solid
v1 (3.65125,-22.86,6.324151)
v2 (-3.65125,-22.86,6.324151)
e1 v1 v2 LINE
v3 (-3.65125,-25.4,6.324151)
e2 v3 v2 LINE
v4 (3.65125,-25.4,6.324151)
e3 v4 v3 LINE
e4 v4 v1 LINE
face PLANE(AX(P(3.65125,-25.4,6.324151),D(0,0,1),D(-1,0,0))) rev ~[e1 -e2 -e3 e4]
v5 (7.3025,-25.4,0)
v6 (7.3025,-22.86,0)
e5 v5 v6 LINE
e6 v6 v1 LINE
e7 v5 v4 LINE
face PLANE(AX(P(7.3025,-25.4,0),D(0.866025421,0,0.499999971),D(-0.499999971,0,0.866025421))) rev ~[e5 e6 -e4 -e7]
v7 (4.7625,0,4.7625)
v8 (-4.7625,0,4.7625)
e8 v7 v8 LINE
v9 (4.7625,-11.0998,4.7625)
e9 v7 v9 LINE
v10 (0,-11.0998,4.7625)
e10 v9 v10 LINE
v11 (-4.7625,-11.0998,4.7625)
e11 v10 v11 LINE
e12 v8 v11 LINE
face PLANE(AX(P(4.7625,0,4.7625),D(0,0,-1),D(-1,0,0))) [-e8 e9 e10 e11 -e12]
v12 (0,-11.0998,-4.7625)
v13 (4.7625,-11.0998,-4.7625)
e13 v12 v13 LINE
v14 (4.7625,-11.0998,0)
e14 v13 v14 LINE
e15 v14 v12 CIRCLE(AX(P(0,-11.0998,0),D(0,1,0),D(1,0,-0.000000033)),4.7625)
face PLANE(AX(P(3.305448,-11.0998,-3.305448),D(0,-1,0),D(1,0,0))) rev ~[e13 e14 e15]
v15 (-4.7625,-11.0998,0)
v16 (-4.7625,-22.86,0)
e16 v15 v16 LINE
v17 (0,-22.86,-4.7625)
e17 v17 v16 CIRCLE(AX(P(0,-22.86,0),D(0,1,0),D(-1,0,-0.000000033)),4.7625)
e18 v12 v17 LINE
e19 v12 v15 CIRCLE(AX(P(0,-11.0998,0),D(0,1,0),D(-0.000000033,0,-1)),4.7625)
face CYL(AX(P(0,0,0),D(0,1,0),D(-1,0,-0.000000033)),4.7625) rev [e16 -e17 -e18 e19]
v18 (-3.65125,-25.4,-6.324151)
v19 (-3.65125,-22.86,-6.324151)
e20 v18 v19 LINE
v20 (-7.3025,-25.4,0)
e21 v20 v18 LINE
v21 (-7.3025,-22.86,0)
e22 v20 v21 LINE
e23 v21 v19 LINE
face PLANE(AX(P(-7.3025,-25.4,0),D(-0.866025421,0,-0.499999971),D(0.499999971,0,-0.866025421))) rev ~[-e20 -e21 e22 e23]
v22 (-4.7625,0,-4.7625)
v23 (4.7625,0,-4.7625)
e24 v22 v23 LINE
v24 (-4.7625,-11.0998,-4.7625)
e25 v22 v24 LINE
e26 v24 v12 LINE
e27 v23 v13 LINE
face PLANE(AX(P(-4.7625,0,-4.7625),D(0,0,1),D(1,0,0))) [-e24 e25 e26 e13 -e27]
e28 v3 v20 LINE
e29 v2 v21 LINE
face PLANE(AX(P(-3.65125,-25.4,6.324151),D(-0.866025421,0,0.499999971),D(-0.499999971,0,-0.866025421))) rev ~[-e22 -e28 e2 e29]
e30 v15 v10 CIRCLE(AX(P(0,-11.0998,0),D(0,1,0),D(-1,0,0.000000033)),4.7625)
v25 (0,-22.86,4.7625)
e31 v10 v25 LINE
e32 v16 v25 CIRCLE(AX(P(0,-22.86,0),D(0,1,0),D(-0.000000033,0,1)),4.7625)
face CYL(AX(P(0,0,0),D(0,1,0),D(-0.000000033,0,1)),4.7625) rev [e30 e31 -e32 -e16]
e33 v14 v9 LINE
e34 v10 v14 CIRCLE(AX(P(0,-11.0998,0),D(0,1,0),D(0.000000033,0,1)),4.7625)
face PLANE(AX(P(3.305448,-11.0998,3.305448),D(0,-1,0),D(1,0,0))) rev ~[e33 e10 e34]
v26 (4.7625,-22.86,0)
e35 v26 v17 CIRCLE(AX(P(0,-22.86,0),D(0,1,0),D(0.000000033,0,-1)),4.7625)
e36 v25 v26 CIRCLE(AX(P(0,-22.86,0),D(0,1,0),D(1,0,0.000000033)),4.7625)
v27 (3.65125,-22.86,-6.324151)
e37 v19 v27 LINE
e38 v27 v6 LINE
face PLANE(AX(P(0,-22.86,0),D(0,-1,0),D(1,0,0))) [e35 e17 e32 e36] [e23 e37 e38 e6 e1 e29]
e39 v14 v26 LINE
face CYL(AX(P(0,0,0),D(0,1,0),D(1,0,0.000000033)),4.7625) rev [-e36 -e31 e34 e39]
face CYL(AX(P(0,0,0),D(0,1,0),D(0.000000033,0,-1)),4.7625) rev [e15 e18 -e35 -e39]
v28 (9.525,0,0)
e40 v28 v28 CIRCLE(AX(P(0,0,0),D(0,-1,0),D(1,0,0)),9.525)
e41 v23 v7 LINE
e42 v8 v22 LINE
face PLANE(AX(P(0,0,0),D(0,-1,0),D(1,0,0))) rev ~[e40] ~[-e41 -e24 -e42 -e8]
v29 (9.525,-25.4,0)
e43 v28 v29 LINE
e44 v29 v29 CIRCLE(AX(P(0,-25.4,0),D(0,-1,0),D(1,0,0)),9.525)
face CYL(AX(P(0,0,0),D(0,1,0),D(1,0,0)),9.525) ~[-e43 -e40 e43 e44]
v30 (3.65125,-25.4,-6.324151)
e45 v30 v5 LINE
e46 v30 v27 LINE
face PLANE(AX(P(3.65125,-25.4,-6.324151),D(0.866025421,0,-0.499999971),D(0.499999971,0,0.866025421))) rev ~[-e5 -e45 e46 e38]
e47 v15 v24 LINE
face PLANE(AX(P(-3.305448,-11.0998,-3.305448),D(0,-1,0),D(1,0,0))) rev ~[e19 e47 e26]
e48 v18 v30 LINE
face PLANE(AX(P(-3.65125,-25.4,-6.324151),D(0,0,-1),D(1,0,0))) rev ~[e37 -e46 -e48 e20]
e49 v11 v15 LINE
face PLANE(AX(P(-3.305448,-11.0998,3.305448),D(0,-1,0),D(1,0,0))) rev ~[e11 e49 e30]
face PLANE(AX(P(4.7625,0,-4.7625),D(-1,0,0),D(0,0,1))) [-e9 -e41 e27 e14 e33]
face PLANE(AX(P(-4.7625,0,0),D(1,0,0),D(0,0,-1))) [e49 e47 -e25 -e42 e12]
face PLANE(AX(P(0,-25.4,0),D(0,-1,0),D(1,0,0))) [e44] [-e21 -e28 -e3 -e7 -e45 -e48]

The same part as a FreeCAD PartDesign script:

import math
import FreeCAD as App
import Part
import Sketcher
Q = App.Units.Quantity

doc = App.newDocument("Part")
body = doc.addObject("PartDesign::Body", "Body")

sketch1 = doc.addObject("Sketcher::SketchObject", "Sketch")
body.addObject(sketch1)
sketch1.AttachmentSupport = (doc.XZ_Plane, [""])
sketch1.MapMode = "FlatFace"
sketch1.addGeometry(Part.Circle(App.Vector(0, 0, 0), App.Vector(0, 0, 1), 10), False)
sketch1.addConstraint([
    Sketcher.Constraint("Coincident", 0, 3, -1, 1),
    Sketcher.Constraint("Diameter", 0, Q("0.75 in")),
])
pad1 = doc.addObject("PartDesign::Pad", "Pad")
body.addObject(pad1)
pad1.Profile = sketch1
pad1.Length = Q("1 in")

sketch2 = doc.addObject("Sketcher::SketchObject", "Sketch001")
body.addObject(sketch2)
sketch2.AttachmentSupport = (doc.XZ_Plane, [""])
sketch2.MapMode = "FlatFace"
sketch2.addGeometry([
    Part.ArcOfCircle(Part.Circle(App.Vector(0, 0, 0), App.Vector(0, 0, 1), 4.8), math.radians(-180), math.radians(-90)),
    Part.ArcOfCircle(Part.Circle(App.Vector(0, 0, 0), App.Vector(0, 0, 1), 4.8), math.radians(-90), math.radians(0)),
    Part.ArcOfCircle(Part.Circle(App.Vector(0, 0, 0), App.Vector(0, 0, 1), 4.8), math.radians(0), math.radians(90)),
    Part.ArcOfCircle(Part.Circle(App.Vector(0, 0, 0), App.Vector(0, 0, 1), 4.8), math.radians(90), math.radians(180)),
], False)
sketch2.addConstraint([
    Sketcher.Constraint("Tangent", 0, 2, 1, 1),
    Sketcher.Constraint("Tangent", 1, 2, 2, 1),
    Sketcher.Constraint("Tangent", 2, 2, 3, 1),
    Sketcher.Constraint("Tangent", 3, 2, 0, 1),
    Sketcher.Constraint("Coincident", 0, 3, -1, 1),
    Sketcher.Constraint("Equal", 0, 1),
    Sketcher.Constraint("PointOnObject", 0, 2, -2),
    Sketcher.Constraint("PointOnObject", 1, 2, -1),
    Sketcher.Constraint("PointOnObject", 2, 2, -2),
    Sketcher.Constraint("PointOnObject", 3, 2, -1),
    Sketcher.Constraint("Radius", 0, Q("0.1875 in")),
])
pocket1 = doc.addObject("PartDesign::Pocket", "Pocket")
body.addObject(pocket1)
pocket1.Profile = sketch2
pocket1.Length = Q("1 in")
pocket1.Reversed = True

sketch3 = doc.addObject("Sketcher::SketchObject", "Sketch002")
body.addObject(sketch3)
sketch3.AttachmentSupport = (doc.XZ_Plane, [""])
sketch3.MapMode = "FlatFace"
sketch3.addGeometry([
    Part.LineSegment(App.Vector(-4.8, 0, 0), App.Vector(-4.8, -4.8, 0)),
    Part.LineSegment(App.Vector(-4.8, -4.8, 0), App.Vector(0, -4.8, 0)),
    Part.ArcOfCircle(Part.Circle(App.Vector(0, 0, 0), App.Vector(0, 0, 1), 4.8), math.radians(-180), math.radians(-90)),
    Part.ArcOfCircle(Part.Circle(App.Vector(0, 0, 0), App.Vector(0, 0, 1), 4.8), math.radians(-90), math.radians(0)),
    Part.LineSegment(App.Vector(0, -4.8, 0), App.Vector(4.8, -4.8, 0)),
    Part.LineSegment(App.Vector(4.8, -4.8, 0), App.Vector(4.8, 0, 0)),
    Part.LineSegment(App.Vector(-4.8, 4.8, 0), App.Vector(-4.8, 0, 0)),
    Part.ArcOfCircle(Part.Circle(App.Vector(0, 0, 0), App.Vector(0, 0, 1), 4.8), math.radians(90), math.radians(180)),
    Part.LineSegment(App.Vector(0, 4.8, 0), App.Vector(-4.8, 4.8, 0)),
    Part.ArcOfCircle(Part.Circle(App.Vector(0, 0, 0), App.Vector(0, 0, 1), 4.8), math.radians(0), math.radians(90)),
    Part.LineSegment(App.Vector(4.8, 0, 0), App.Vector(4.8, 4.8, 0)),
    Part.LineSegment(App.Vector(4.8, 4.8, 0), App.Vector(0, 4.8, 0)),
], False)
sketch3.addConstraint([
    Sketcher.Constraint("Coincident", 0, 2, 1, 1),
    Sketcher.Constraint("Tangent", 1, 2, 2, 2),
    Sketcher.Constraint("Tangent", 2, 1, 0, 1),
    Sketcher.Constraint("Tangent", 3, 1, 4, 1),
    Sketcher.Constraint("Coincident", 4, 2, 5, 1),
    Sketcher.Constraint("Tangent", 5, 2, 3, 2),
    Sketcher.Constraint("Tangent", 6, 2, 7, 2),
    Sketcher.Constraint("Tangent", 7, 1, 8, 1),
    Sketcher.Constraint("Coincident", 8, 2, 6, 1),
    Sketcher.Constraint("Tangent", 9, 1, 10, 1),
    Sketcher.Constraint("Coincident", 10, 2, 11, 1),
    Sketcher.Constraint("Tangent", 11, 2, 9, 2),
    Sketcher.Constraint("Vertical", 0),
    Sketcher.Constraint("Horizontal", 1),
    Sketcher.Constraint("Horizontal", 4),
    Sketcher.Constraint("Vertical", 5),
    Sketcher.Constraint("Vertical", 6),
    Sketcher.Constraint("Horizontal", 8),
    Sketcher.Constraint("Vertical", 10),
    Sketcher.Constraint("Horizontal", 11),
    Sketcher.Constraint("Coincident", 2, 3, -1, 1),
    Sketcher.Constraint("Coincident", 3, 3, -1, 1),
    Sketcher.Constraint("Coincident", 7, 3, -1, 1),
    Sketcher.Constraint("Coincident", 9, 3, -1, 1),
    Sketcher.Constraint("Equal", 2, 3),
    Sketcher.Constraint("Equal", 3, 7),
    Sketcher.Constraint("Equal", 7, 9),
    Sketcher.Constraint("Radius", 2, Q("0.1875 in")),
])
pocket2 = doc.addObject("PartDesign::Pocket", "Pocket001")
body.addObject(pocket2)
pocket2.Profile = sketch3
pocket2.Length = Q("0.437 in")
pocket2.Reversed = True

sketch4 = doc.addObject("Sketcher::SketchObject", "Sketch003")
body.addObject(sketch4)
sketch4.AttachmentSupport = (doc.XZ_Plane, [""])
sketch4.MapMode = "FlatFace"
sketch4.AttachmentOffset = App.Placement(App.Vector(0, 0, 1 * 25.4), App.Rotation())
sketch4.addGeometry([
    Part.LineSegment(App.Vector(7, 0, 0), App.Vector(4, 6, 0)),
    Part.LineSegment(App.Vector(4, 6, 0), App.Vector(-4, 6, 0)),
    Part.LineSegment(App.Vector(-4, 6, 0), App.Vector(-7, 0, 0)),
    Part.LineSegment(App.Vector(-7, 0, 0), App.Vector(-4, -6, 0)),
    Part.LineSegment(App.Vector(-4, -6, 0), App.Vector(4, -6, 0)),
    Part.LineSegment(App.Vector(4, -6, 0), App.Vector(7, 0, 0)),
], False)
sketch4.addConstraint([
    Sketcher.Constraint("Coincident", 0, 2, 1, 1),
    Sketcher.Constraint("Coincident", 1, 2, 2, 1),
    Sketcher.Constraint("Coincident", 2, 2, 3, 1),
    Sketcher.Constraint("Coincident", 3, 2, 4, 1),
    Sketcher.Constraint("Coincident", 4, 2, 5, 1),
    Sketcher.Constraint("Coincident", 5, 2, 0, 1),
    Sketcher.Constraint("Horizontal", 1),
    Sketcher.Constraint("Horizontal", 4),
    Sketcher.Constraint("Symmetric", 0, 2, 3, 2, -1, 1),
    Sketcher.Constraint("Symmetric", 2, 2, 5, 2, -1, 1),
    Sketcher.Constraint("PointOnObject", 2, 2, -1),
    Sketcher.Constraint("Parallel", 2, 5),
    Sketcher.Constraint("Vertical", 1, 2, 3, 2),
    Sketcher.Constraint("Angle", 0, Q("119.999998 deg")),
    Sketcher.Constraint("DistanceX", 1, 2, 1, 1, Q("0.2875 in")),
    Sketcher.Constraint("DistanceX", 2, 2, 5, 2, Q("0.575 in")),
])
pocket3 = doc.addObject("PartDesign::Pocket", "Pocket002")
body.addObject(pocket3)
pocket3.Profile = sketch4
pocket3.Length = Q("0.1 in")

doc.recompute()
